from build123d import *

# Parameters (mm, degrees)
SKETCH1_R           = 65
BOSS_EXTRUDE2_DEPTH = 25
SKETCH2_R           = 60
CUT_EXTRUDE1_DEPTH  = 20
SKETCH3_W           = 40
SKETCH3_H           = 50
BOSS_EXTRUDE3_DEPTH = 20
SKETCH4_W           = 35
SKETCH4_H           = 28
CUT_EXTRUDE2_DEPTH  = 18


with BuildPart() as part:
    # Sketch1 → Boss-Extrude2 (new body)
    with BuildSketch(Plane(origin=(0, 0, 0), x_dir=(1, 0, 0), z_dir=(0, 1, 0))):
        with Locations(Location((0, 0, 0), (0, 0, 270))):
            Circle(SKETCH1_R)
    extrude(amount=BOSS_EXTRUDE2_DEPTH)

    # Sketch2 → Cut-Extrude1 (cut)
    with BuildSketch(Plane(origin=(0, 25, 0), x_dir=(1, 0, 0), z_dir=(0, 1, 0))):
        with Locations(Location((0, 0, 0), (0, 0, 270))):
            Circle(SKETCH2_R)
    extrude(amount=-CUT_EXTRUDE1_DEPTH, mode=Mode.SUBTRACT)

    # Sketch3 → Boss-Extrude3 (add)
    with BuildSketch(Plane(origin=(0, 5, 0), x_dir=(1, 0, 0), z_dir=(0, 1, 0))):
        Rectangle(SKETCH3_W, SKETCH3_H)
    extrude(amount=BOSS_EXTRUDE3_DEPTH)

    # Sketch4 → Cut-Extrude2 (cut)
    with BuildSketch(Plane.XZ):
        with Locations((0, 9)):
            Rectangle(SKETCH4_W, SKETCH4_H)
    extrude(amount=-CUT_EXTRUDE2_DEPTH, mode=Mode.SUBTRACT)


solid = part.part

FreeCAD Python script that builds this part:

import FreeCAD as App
import Part
import Sketcher
from FreeCAD import Vector


def add_polygon(sketch, points):
    """Adds a closed chain of lines whose ends are joined by coincident constraints."""
    first, n = sketch.GeometryCount, len(points)
    for a, b in zip(points, points[1:] + points[:1]):
        sketch.addGeometry(Part.LineSegment(App.Vector(*a, 0), App.Vector(*b, 0)), False)
    for i in range(n):
        sketch.addConstraint(Sketcher.Constraint("Coincident", first + i, 2, first + (i + 1) % n, 1))

doc = App.newDocument("Part")
body = doc.addObject("PartDesign::Body", "Body")

# Sketch on XZ plane
sketch1 = doc.addObject("Sketcher::SketchObject", "Sketch")
body.addObject(sketch1)
sketch1.AttachmentSupport = (doc.XZ_Plane, [""])
sketch1.MapMode = "FlatFace"
sketch1.addGeometry(Part.Circle(Vector(0, 0, 0), Vector(0, 0, 1), 65), False)
sketch1.addConstraint(Sketcher.Constraint("Coincident", 0, 3, -1, 1))
sketch1.addConstraint(Sketcher.Constraint("Diameter", 0, 130.0))
pad1 = doc.addObject("PartDesign::Pad", "Pad")
body.addObject(pad1)
pad1.Profile = sketch1
pad1.Length = 25
pad1.Reversed = True

# Sketch on XZ plane
sketch2 = doc.addObject("Sketcher::SketchObject", "Sketch001")
body.addObject(sketch2)
sketch2.AttachmentSupport = (doc.XZ_Plane, [""])
sketch2.MapMode = "FlatFace"
sketch2.AttachmentOffset = App.Placement(Vector(0, 0, -25), App.Rotation())
sketch2.addGeometry(Part.Circle(Vector(0, 0, 0), Vector(0, 0, 1), 60), False)
sketch2.addConstraint(Sketcher.Constraint("Coincident", 0, 3, -1, 1))
sketch2.addConstraint(Sketcher.Constraint("Diameter", 0, 120.0))
pocket1 = doc.addObject("PartDesign::Pocket", "Pocket")
body.addObject(pocket1)
pocket1.Profile = sketch2
pocket1.Length = 20
pocket1.Reversed = True

# Sketch on XZ plane
sketch3 = doc.addObject("Sketcher::SketchObject", "Sketch002")
body.addObject(sketch3)
sketch3.AttachmentSupport = (doc.XZ_Plane, [""])
sketch3.MapMode = "FlatFace"
sketch3.AttachmentOffset = App.Placement(Vector(0, 0, -5), App.Rotation())
add_polygon(sketch3, [(-20, -25), (-20, 25), (20, 25), (20, -25)])  # lines 0-3
sketch3.addConstraint(Sketcher.Constraint("Vertical", 0))
sketch3.addConstraint(Sketcher.Constraint("Horizontal", 1))
sketch3.addConstraint(Sketcher.Constraint("Vertical", 2))
sketch3.addConstraint(Sketcher.Constraint("Horizontal", 3))
sketch3.addConstraint(Sketcher.Constraint("Symmetric", 0, 2, 2, 2, -1, 1))
sketch3.addConstraint(Sketcher.Constraint("DistanceX", 1, 1, 1, 2, 40.0))
sketch3.addConstraint(Sketcher.Constraint("DistanceY", 0, 1, 0, 2, 50.0))
pad2 = doc.addObject("PartDesign::Pad", "Pad001")
body.addObject(pad2)
pad2.Profile = sketch3
pad2.Length = 20
pad2.Reversed = True

# Sketch on XZ plane
sketch4 = doc.addObject("Sketcher::SketchObject", "Sketch003")
body.addObject(sketch4)
sketch4.AttachmentSupport = (doc.XZ_Plane, [""])
sketch4.MapMode = "FlatFace"
add_polygon(sketch4, [(-17.5, 23), (-17.5, -5), (17.5, -5), (17.5, 23)])  # lines 0-3
sketch4.addConstraint(Sketcher.Constraint("Vertical", 0))
sketch4.addConstraint(Sketcher.Constraint("Horizontal", 1))
sketch4.addConstraint(Sketcher.Constraint("Vertical", 2))
sketch4.addConstraint(Sketcher.Constraint("Horizontal", 3))
sketch4.addConstraint(Sketcher.Constraint("DistanceX", 1, 1, 1, 2, 35.0))
sketch4.addConstraint(Sketcher.Constraint("DistanceY", 0, 2, 0, 1, 28.0))
sketch4.addConstraint(Sketcher.Constraint("DistanceY", 0, 2, -1, 1, 5.0))
sketch4.addConstraint(Sketcher.Constraint("DistanceX", 0, 2, -1, 1, 17.5))
pocket2 = doc.addObject("PartDesign::Pocket", "Pocket001")
body.addObject(pocket2)
pocket2.Profile = sketch4
pocket2.Length = 18

doc.recompute()
